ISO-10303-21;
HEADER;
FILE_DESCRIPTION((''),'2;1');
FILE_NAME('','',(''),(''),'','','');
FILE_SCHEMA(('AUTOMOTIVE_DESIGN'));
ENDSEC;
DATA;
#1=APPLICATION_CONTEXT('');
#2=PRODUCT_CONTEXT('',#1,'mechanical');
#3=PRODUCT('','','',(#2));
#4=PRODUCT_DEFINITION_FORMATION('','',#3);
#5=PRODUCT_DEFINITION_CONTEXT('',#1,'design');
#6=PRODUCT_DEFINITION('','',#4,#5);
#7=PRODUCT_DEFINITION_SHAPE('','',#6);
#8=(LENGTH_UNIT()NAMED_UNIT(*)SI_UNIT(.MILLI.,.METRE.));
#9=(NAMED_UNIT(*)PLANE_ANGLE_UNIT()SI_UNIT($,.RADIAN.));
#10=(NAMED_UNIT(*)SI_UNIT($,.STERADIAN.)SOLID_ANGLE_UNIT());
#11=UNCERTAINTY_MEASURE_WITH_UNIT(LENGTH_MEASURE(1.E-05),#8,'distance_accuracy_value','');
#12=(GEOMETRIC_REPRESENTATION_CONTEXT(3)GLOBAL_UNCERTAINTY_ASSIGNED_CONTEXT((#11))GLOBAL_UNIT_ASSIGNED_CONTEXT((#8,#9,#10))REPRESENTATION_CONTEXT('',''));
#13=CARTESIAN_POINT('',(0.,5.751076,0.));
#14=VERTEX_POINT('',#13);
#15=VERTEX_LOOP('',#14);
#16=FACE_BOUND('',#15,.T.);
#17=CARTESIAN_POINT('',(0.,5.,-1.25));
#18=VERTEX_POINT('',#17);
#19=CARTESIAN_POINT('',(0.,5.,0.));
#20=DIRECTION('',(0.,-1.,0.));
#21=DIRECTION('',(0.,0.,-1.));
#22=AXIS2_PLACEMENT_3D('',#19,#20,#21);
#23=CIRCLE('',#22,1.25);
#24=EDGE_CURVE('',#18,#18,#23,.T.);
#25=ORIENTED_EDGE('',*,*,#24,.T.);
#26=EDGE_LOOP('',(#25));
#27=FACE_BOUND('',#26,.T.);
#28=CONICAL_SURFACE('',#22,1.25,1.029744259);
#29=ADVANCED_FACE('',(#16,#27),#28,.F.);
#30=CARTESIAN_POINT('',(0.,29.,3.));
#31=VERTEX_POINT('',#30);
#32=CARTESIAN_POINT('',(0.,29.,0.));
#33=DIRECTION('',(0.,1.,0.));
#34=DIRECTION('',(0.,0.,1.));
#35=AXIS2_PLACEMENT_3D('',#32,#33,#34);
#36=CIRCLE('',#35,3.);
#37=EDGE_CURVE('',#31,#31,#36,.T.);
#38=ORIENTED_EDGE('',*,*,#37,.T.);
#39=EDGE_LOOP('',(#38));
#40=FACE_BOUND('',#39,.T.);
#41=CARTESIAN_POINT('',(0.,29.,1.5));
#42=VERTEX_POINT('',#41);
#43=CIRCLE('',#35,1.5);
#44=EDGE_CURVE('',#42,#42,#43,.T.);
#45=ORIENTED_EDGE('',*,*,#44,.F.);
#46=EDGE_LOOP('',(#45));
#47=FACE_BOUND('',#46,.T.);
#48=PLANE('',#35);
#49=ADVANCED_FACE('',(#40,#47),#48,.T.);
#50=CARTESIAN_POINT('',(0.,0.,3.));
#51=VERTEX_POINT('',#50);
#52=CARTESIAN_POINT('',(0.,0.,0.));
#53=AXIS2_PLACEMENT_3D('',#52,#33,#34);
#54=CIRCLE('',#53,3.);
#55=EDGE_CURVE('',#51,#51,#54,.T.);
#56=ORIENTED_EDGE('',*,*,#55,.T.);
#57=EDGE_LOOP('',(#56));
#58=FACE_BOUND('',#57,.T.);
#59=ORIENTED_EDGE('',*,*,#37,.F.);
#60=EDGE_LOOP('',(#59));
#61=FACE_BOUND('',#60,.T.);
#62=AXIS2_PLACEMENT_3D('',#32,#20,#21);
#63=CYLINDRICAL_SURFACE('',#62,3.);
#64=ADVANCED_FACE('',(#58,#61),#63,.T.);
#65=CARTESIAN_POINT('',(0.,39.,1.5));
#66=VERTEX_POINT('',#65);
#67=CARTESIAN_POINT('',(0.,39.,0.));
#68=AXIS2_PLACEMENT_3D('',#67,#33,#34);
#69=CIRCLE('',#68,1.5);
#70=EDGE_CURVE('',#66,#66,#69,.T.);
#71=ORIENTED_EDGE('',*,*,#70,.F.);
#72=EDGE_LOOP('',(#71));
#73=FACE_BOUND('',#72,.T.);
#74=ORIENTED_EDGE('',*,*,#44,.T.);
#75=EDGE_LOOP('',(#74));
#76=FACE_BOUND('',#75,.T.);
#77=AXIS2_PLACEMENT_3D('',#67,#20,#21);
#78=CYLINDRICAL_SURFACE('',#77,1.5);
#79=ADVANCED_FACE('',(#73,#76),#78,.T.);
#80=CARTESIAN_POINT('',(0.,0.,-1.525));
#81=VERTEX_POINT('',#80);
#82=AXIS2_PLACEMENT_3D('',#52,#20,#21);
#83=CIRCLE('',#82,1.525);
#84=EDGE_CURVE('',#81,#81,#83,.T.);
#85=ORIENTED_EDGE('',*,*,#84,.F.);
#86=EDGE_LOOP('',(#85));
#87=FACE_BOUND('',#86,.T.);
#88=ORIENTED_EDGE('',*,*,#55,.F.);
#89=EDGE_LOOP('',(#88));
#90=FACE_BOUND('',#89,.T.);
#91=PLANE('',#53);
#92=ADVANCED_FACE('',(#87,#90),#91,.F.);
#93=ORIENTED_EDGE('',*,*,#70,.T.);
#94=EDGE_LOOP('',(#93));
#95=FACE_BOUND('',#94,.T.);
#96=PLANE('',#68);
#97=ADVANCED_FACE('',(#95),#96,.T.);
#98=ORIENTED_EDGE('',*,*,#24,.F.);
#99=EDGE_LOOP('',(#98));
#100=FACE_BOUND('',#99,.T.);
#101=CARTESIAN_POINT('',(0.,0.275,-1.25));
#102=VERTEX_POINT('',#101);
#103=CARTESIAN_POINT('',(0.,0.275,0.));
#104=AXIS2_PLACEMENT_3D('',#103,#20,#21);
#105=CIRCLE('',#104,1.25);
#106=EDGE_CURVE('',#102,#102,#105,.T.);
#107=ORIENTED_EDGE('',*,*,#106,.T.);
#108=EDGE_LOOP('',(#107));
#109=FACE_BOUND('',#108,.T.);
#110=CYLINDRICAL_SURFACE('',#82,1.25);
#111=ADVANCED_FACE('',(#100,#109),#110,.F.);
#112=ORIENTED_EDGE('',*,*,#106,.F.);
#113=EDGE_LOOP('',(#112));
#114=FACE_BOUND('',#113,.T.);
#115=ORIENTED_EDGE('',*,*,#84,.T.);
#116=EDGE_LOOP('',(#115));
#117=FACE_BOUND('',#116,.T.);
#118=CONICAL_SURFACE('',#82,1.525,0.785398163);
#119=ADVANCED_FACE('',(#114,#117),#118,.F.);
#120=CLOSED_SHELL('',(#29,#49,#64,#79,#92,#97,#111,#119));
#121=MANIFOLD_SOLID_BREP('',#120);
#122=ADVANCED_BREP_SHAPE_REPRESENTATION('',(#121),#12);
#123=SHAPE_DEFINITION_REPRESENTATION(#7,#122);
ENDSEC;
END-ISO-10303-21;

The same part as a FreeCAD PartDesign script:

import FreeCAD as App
import Part
import Sketcher
Q = App.Units.Quantity

doc = App.newDocument("Part")
body = doc.addObject("PartDesign::Body", "Body")

# Sketch on XZ plane
sketch1 = body.newObject("Sketcher::SketchObject", "Sketch")
sketch1.AttachmentSupport = (doc.getObject("XZ_Plane"), [""])
sketch1.MapMode = "FlatFace"
sketch1.addGeometry(Part.Circle(App.Vector(0, 0, 0), App.Vector(0, 0, 1), 3), False)
sketch1.addConstraint([
    Sketcher.Constraint("Coincident", 0, 3, -1, 1),
    Sketcher.Constraint("Diameter", 0, Q("6 mm")),
])
pad1 = body.newObject("PartDesign::Pad", "Pad")
pad1.Profile = sketch1
pad1.Length = 29
pad1.Reversed = True

# Sketch on XZ plane
sketch2 = body.newObject("Sketcher::SketchObject", "Sketch001")
sketch2.AttachmentSupport = (doc.getObject("XZ_Plane"), [""])
sketch2.MapMode = "FlatFace"
sketch2.AttachmentOffset = App.Placement(App.Vector(0, 0, -29), App.Rotation())
sketch2.addGeometry(Part.Circle(App.Vector(0, 0, 0), App.Vector(0, 0, 1), 1.5), False)
sketch2.addConstraint([
    Sketcher.Constraint("Coincident", 0, 3, -1, 1),
    Sketcher.Constraint("Diameter", 0, Q("3 mm")),
])
pad2 = body.newObject("PartDesign::Pad", "Pad001")
pad2.Profile = sketch2
pad2.Length = 10
pad2.Reversed = True

# Sketch on XZ plane
sketch3 = body.newObject("Sketcher::SketchObject", "Sketch002")
sketch3.AttachmentSupport = (doc.getObject("XZ_Plane"), [""])
sketch3.MapMode = "FlatFace"
sketch3.addGeometry(Part.Circle(App.Vector(0, 0, 0), App.Vector(0, 0, 1), 1.2), False)
sketch3.addConstraint([
    Sketcher.Constraint("Coincident", 0, 3, -1, 1),
    Sketcher.Constraint("Diameter", 0, Q("2.5 mm")),
])
doc.recompute()
hole = body.newObject("PartDesign::Hole", "Hole")
hole.Profile = sketch3
hole.ThreadType = "None"
hole.Diameter = 2.5
hole.DepthType = "Dimension"
hole.Depth = 5
hole.DrillPoint = "Angled"
hole.DrillPointAngle = 118
hole.HoleCutType = "Countersink"
hole.HoleCutDiameter = 3.05
hole.HoleCutCountersinkAngle = 90

doc.recompute()
